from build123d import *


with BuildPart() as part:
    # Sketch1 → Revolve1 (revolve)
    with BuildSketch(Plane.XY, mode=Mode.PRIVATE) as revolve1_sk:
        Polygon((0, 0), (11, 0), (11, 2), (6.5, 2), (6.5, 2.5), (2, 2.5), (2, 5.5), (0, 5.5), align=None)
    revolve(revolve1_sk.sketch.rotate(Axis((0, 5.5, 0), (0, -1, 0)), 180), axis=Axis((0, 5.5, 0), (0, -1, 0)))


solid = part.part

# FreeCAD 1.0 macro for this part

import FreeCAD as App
import Part
import Sketcher
from FreeCAD import Vector


def add_polygon(sketch, points):
    """Adds a closed chain of lines whose ends are joined by coincident constraints."""
    first, n = sketch.GeometryCount, len(points)
    for a, b in zip(points, points[1:] + points[:1]):
        sketch.addGeometry(Part.LineSegment(App.Vector(*a, 0), App.Vector(*b, 0)), False)
    for i in range(n):
        sketch.addConstraint(Sketcher.Constraint("Coincident", first + i, 2, first + (i + 1) % n, 1))

doc = App.newDocument("Part")
body = doc.addObject("PartDesign::Body", "Body")

# Sketch on XY plane
sketch1 = doc.addObject("Sketcher::SketchObject", "Sketch")
body.addObject(sketch1)
sketch1.AttachmentSupport = (doc.XY_Plane, [""])
sketch1.MapMode = "FlatFace"
add_polygon(sketch1, [(0, 0), (11, 0), (11, 2), (6.5, 2), (6.5, 2.5), (2, 2.5), (2, 5.5), (0, 5.5)])  # lines 0-7
sketch1.addConstraint([
    Sketcher.Constraint("Horizontal", 0),
    Sketcher.Constraint("Vertical", 1),
    Sketcher.Constraint("Horizontal", 2),
    Sketcher.Constraint("Vertical", 3),
    Sketcher.Constraint("Horizontal", 4),
    Sketcher.Constraint("Vertical", 5),
    Sketcher.Constraint("Horizontal", 6),
    Sketcher.Constraint("Vertical", 7),
    Sketcher.Constraint("Coincident", 7, 2, -1, 1),
    Sketcher.Constraint("Equal", 2, 4),
    Sketcher.Constraint("Equal", 6, 1),
    Sketcher.Constraint("DistanceX", 0, 1, 0, 2, 11.0),
    Sketcher.Constraint("DistanceX", 6, 2, 6, 1, 2.0),
    Sketcher.Constraint("DistanceY", 5, 1, 5, 2, 3.0),
    Sketcher.Constraint("DistanceY", 3, 1, 3, 2, 0.5),
])
revolution = doc.addObject("PartDesign::Revolution", "Revolution")
body.addObject(revolution)
revolution.Profile = sketch1
revolution.ReferenceAxis = (sketch1, ["V_Axis"])
revolution.Angle = 360

doc.recompute()
